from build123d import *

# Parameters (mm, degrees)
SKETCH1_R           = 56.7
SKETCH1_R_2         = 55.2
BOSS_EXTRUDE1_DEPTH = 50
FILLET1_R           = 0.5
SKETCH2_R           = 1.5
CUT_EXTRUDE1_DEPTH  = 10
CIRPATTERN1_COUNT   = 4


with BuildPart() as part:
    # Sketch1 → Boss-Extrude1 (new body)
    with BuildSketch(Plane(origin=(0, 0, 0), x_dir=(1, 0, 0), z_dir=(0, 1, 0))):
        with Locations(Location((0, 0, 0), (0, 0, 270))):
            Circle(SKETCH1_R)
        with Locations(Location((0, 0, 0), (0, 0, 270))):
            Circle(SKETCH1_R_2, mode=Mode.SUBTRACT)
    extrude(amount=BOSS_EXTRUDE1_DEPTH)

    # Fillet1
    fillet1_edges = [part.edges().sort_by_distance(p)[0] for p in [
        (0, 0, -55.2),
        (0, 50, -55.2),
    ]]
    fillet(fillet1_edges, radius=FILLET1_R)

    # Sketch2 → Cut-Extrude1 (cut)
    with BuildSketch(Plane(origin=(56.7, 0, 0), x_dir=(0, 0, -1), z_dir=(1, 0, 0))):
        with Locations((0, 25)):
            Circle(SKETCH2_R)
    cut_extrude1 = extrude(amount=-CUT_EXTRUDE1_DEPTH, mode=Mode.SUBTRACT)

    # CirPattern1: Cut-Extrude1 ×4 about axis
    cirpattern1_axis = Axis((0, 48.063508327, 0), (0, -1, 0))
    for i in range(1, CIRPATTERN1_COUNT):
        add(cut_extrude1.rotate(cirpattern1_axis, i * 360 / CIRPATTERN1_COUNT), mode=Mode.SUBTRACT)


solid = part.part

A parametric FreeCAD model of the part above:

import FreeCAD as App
import Part
import Sketcher

V = App.Vector
Q = App.Units.Quantity


def edges_at(feature, points):
    """Names of the edges that pass closest to the given points."""
    edges = feature.Shape.Edges
    near = lambda p: min(range(len(edges)), key=lambda i: edges[i].distToShape(Part.Vertex(*p))[0])
    return sorted({f"Edge{near(p) + 1}" for p in points})

doc = App.newDocument("Part")
body = doc.addObject("PartDesign::Body", "Body")

# Sketch on XZ plane
sketch1 = body.newObject("Sketcher::SketchObject", "Sketch")
sketch1.AttachmentSupport = (doc.getObject("XZ_Plane"), [""])
sketch1.MapMode = "FlatFace"
sketch1.addGeometry([
    Part.Circle(V(0, 0, 0), V(0, 0, 1), 57),
    Part.Circle(V(0, 0, 0), V(0, 0, 1), 55),
], False)
sketch1.addConstraint([
    Sketcher.Constraint("Coincident", 0, 3, -1, 1),
    Sketcher.Constraint("Coincident", 1, 3, -1, 1),
    Sketcher.Constraint("Diameter", 0, Q("113.4 mm")),
    Sketcher.Constraint("Diameter", 1, Q("110.4 mm")),
])
pad1 = body.newObject("PartDesign::Pad", "Pad")
pad1.Profile = sketch1
pad1.Length = 50
pad1.Reversed = True
doc.recompute()

fillet = body.newObject("PartDesign::Fillet", "Fillet")
fillet.Base = (pad1, edges_at(pad1, [(0, 0, -55.2), (0, 50, -55.2)]))
fillet.Radius = 0.5

# Sketch on YZ plane
sketch2 = body.newObject("Sketcher::SketchObject", "Sketch001")
sketch2.AttachmentSupport = (doc.getObject("YZ_Plane"), [""])
sketch2.MapMode = "FlatFace"
sketch2.AttachmentOffset = App.Placement(V(0, 0, 56.7), App.Rotation())
sketch2.addGeometry(Part.Circle(V(25, 0, 0), V(0, 0, 1), 1.5), False)
sketch2.addConstraint([
    Sketcher.Constraint("PointOnObject", 0, 3, -1),
    Sketcher.Constraint("Diameter", 0, Q("3 mm")),
    Sketcher.Constraint("DistanceX", -1, 1, 0, 3, Q("25 mm")),
])
pocket1 = body.newObject("PartDesign::Pocket", "Pocket")
pocket1.Profile = sketch2
pocket1.Length = 10
doc.recompute()

polarpattern = body.newObject("PartDesign::PolarPattern", "PolarPattern")
polarpattern.Originals = [pocket1]
polarpattern.Axis = (doc.getObject("Y_Axis"), [""])
polarpattern.Angle = 360
polarpattern.Occurrences = 4
body.Tip = polarpattern

doc.recompute()
